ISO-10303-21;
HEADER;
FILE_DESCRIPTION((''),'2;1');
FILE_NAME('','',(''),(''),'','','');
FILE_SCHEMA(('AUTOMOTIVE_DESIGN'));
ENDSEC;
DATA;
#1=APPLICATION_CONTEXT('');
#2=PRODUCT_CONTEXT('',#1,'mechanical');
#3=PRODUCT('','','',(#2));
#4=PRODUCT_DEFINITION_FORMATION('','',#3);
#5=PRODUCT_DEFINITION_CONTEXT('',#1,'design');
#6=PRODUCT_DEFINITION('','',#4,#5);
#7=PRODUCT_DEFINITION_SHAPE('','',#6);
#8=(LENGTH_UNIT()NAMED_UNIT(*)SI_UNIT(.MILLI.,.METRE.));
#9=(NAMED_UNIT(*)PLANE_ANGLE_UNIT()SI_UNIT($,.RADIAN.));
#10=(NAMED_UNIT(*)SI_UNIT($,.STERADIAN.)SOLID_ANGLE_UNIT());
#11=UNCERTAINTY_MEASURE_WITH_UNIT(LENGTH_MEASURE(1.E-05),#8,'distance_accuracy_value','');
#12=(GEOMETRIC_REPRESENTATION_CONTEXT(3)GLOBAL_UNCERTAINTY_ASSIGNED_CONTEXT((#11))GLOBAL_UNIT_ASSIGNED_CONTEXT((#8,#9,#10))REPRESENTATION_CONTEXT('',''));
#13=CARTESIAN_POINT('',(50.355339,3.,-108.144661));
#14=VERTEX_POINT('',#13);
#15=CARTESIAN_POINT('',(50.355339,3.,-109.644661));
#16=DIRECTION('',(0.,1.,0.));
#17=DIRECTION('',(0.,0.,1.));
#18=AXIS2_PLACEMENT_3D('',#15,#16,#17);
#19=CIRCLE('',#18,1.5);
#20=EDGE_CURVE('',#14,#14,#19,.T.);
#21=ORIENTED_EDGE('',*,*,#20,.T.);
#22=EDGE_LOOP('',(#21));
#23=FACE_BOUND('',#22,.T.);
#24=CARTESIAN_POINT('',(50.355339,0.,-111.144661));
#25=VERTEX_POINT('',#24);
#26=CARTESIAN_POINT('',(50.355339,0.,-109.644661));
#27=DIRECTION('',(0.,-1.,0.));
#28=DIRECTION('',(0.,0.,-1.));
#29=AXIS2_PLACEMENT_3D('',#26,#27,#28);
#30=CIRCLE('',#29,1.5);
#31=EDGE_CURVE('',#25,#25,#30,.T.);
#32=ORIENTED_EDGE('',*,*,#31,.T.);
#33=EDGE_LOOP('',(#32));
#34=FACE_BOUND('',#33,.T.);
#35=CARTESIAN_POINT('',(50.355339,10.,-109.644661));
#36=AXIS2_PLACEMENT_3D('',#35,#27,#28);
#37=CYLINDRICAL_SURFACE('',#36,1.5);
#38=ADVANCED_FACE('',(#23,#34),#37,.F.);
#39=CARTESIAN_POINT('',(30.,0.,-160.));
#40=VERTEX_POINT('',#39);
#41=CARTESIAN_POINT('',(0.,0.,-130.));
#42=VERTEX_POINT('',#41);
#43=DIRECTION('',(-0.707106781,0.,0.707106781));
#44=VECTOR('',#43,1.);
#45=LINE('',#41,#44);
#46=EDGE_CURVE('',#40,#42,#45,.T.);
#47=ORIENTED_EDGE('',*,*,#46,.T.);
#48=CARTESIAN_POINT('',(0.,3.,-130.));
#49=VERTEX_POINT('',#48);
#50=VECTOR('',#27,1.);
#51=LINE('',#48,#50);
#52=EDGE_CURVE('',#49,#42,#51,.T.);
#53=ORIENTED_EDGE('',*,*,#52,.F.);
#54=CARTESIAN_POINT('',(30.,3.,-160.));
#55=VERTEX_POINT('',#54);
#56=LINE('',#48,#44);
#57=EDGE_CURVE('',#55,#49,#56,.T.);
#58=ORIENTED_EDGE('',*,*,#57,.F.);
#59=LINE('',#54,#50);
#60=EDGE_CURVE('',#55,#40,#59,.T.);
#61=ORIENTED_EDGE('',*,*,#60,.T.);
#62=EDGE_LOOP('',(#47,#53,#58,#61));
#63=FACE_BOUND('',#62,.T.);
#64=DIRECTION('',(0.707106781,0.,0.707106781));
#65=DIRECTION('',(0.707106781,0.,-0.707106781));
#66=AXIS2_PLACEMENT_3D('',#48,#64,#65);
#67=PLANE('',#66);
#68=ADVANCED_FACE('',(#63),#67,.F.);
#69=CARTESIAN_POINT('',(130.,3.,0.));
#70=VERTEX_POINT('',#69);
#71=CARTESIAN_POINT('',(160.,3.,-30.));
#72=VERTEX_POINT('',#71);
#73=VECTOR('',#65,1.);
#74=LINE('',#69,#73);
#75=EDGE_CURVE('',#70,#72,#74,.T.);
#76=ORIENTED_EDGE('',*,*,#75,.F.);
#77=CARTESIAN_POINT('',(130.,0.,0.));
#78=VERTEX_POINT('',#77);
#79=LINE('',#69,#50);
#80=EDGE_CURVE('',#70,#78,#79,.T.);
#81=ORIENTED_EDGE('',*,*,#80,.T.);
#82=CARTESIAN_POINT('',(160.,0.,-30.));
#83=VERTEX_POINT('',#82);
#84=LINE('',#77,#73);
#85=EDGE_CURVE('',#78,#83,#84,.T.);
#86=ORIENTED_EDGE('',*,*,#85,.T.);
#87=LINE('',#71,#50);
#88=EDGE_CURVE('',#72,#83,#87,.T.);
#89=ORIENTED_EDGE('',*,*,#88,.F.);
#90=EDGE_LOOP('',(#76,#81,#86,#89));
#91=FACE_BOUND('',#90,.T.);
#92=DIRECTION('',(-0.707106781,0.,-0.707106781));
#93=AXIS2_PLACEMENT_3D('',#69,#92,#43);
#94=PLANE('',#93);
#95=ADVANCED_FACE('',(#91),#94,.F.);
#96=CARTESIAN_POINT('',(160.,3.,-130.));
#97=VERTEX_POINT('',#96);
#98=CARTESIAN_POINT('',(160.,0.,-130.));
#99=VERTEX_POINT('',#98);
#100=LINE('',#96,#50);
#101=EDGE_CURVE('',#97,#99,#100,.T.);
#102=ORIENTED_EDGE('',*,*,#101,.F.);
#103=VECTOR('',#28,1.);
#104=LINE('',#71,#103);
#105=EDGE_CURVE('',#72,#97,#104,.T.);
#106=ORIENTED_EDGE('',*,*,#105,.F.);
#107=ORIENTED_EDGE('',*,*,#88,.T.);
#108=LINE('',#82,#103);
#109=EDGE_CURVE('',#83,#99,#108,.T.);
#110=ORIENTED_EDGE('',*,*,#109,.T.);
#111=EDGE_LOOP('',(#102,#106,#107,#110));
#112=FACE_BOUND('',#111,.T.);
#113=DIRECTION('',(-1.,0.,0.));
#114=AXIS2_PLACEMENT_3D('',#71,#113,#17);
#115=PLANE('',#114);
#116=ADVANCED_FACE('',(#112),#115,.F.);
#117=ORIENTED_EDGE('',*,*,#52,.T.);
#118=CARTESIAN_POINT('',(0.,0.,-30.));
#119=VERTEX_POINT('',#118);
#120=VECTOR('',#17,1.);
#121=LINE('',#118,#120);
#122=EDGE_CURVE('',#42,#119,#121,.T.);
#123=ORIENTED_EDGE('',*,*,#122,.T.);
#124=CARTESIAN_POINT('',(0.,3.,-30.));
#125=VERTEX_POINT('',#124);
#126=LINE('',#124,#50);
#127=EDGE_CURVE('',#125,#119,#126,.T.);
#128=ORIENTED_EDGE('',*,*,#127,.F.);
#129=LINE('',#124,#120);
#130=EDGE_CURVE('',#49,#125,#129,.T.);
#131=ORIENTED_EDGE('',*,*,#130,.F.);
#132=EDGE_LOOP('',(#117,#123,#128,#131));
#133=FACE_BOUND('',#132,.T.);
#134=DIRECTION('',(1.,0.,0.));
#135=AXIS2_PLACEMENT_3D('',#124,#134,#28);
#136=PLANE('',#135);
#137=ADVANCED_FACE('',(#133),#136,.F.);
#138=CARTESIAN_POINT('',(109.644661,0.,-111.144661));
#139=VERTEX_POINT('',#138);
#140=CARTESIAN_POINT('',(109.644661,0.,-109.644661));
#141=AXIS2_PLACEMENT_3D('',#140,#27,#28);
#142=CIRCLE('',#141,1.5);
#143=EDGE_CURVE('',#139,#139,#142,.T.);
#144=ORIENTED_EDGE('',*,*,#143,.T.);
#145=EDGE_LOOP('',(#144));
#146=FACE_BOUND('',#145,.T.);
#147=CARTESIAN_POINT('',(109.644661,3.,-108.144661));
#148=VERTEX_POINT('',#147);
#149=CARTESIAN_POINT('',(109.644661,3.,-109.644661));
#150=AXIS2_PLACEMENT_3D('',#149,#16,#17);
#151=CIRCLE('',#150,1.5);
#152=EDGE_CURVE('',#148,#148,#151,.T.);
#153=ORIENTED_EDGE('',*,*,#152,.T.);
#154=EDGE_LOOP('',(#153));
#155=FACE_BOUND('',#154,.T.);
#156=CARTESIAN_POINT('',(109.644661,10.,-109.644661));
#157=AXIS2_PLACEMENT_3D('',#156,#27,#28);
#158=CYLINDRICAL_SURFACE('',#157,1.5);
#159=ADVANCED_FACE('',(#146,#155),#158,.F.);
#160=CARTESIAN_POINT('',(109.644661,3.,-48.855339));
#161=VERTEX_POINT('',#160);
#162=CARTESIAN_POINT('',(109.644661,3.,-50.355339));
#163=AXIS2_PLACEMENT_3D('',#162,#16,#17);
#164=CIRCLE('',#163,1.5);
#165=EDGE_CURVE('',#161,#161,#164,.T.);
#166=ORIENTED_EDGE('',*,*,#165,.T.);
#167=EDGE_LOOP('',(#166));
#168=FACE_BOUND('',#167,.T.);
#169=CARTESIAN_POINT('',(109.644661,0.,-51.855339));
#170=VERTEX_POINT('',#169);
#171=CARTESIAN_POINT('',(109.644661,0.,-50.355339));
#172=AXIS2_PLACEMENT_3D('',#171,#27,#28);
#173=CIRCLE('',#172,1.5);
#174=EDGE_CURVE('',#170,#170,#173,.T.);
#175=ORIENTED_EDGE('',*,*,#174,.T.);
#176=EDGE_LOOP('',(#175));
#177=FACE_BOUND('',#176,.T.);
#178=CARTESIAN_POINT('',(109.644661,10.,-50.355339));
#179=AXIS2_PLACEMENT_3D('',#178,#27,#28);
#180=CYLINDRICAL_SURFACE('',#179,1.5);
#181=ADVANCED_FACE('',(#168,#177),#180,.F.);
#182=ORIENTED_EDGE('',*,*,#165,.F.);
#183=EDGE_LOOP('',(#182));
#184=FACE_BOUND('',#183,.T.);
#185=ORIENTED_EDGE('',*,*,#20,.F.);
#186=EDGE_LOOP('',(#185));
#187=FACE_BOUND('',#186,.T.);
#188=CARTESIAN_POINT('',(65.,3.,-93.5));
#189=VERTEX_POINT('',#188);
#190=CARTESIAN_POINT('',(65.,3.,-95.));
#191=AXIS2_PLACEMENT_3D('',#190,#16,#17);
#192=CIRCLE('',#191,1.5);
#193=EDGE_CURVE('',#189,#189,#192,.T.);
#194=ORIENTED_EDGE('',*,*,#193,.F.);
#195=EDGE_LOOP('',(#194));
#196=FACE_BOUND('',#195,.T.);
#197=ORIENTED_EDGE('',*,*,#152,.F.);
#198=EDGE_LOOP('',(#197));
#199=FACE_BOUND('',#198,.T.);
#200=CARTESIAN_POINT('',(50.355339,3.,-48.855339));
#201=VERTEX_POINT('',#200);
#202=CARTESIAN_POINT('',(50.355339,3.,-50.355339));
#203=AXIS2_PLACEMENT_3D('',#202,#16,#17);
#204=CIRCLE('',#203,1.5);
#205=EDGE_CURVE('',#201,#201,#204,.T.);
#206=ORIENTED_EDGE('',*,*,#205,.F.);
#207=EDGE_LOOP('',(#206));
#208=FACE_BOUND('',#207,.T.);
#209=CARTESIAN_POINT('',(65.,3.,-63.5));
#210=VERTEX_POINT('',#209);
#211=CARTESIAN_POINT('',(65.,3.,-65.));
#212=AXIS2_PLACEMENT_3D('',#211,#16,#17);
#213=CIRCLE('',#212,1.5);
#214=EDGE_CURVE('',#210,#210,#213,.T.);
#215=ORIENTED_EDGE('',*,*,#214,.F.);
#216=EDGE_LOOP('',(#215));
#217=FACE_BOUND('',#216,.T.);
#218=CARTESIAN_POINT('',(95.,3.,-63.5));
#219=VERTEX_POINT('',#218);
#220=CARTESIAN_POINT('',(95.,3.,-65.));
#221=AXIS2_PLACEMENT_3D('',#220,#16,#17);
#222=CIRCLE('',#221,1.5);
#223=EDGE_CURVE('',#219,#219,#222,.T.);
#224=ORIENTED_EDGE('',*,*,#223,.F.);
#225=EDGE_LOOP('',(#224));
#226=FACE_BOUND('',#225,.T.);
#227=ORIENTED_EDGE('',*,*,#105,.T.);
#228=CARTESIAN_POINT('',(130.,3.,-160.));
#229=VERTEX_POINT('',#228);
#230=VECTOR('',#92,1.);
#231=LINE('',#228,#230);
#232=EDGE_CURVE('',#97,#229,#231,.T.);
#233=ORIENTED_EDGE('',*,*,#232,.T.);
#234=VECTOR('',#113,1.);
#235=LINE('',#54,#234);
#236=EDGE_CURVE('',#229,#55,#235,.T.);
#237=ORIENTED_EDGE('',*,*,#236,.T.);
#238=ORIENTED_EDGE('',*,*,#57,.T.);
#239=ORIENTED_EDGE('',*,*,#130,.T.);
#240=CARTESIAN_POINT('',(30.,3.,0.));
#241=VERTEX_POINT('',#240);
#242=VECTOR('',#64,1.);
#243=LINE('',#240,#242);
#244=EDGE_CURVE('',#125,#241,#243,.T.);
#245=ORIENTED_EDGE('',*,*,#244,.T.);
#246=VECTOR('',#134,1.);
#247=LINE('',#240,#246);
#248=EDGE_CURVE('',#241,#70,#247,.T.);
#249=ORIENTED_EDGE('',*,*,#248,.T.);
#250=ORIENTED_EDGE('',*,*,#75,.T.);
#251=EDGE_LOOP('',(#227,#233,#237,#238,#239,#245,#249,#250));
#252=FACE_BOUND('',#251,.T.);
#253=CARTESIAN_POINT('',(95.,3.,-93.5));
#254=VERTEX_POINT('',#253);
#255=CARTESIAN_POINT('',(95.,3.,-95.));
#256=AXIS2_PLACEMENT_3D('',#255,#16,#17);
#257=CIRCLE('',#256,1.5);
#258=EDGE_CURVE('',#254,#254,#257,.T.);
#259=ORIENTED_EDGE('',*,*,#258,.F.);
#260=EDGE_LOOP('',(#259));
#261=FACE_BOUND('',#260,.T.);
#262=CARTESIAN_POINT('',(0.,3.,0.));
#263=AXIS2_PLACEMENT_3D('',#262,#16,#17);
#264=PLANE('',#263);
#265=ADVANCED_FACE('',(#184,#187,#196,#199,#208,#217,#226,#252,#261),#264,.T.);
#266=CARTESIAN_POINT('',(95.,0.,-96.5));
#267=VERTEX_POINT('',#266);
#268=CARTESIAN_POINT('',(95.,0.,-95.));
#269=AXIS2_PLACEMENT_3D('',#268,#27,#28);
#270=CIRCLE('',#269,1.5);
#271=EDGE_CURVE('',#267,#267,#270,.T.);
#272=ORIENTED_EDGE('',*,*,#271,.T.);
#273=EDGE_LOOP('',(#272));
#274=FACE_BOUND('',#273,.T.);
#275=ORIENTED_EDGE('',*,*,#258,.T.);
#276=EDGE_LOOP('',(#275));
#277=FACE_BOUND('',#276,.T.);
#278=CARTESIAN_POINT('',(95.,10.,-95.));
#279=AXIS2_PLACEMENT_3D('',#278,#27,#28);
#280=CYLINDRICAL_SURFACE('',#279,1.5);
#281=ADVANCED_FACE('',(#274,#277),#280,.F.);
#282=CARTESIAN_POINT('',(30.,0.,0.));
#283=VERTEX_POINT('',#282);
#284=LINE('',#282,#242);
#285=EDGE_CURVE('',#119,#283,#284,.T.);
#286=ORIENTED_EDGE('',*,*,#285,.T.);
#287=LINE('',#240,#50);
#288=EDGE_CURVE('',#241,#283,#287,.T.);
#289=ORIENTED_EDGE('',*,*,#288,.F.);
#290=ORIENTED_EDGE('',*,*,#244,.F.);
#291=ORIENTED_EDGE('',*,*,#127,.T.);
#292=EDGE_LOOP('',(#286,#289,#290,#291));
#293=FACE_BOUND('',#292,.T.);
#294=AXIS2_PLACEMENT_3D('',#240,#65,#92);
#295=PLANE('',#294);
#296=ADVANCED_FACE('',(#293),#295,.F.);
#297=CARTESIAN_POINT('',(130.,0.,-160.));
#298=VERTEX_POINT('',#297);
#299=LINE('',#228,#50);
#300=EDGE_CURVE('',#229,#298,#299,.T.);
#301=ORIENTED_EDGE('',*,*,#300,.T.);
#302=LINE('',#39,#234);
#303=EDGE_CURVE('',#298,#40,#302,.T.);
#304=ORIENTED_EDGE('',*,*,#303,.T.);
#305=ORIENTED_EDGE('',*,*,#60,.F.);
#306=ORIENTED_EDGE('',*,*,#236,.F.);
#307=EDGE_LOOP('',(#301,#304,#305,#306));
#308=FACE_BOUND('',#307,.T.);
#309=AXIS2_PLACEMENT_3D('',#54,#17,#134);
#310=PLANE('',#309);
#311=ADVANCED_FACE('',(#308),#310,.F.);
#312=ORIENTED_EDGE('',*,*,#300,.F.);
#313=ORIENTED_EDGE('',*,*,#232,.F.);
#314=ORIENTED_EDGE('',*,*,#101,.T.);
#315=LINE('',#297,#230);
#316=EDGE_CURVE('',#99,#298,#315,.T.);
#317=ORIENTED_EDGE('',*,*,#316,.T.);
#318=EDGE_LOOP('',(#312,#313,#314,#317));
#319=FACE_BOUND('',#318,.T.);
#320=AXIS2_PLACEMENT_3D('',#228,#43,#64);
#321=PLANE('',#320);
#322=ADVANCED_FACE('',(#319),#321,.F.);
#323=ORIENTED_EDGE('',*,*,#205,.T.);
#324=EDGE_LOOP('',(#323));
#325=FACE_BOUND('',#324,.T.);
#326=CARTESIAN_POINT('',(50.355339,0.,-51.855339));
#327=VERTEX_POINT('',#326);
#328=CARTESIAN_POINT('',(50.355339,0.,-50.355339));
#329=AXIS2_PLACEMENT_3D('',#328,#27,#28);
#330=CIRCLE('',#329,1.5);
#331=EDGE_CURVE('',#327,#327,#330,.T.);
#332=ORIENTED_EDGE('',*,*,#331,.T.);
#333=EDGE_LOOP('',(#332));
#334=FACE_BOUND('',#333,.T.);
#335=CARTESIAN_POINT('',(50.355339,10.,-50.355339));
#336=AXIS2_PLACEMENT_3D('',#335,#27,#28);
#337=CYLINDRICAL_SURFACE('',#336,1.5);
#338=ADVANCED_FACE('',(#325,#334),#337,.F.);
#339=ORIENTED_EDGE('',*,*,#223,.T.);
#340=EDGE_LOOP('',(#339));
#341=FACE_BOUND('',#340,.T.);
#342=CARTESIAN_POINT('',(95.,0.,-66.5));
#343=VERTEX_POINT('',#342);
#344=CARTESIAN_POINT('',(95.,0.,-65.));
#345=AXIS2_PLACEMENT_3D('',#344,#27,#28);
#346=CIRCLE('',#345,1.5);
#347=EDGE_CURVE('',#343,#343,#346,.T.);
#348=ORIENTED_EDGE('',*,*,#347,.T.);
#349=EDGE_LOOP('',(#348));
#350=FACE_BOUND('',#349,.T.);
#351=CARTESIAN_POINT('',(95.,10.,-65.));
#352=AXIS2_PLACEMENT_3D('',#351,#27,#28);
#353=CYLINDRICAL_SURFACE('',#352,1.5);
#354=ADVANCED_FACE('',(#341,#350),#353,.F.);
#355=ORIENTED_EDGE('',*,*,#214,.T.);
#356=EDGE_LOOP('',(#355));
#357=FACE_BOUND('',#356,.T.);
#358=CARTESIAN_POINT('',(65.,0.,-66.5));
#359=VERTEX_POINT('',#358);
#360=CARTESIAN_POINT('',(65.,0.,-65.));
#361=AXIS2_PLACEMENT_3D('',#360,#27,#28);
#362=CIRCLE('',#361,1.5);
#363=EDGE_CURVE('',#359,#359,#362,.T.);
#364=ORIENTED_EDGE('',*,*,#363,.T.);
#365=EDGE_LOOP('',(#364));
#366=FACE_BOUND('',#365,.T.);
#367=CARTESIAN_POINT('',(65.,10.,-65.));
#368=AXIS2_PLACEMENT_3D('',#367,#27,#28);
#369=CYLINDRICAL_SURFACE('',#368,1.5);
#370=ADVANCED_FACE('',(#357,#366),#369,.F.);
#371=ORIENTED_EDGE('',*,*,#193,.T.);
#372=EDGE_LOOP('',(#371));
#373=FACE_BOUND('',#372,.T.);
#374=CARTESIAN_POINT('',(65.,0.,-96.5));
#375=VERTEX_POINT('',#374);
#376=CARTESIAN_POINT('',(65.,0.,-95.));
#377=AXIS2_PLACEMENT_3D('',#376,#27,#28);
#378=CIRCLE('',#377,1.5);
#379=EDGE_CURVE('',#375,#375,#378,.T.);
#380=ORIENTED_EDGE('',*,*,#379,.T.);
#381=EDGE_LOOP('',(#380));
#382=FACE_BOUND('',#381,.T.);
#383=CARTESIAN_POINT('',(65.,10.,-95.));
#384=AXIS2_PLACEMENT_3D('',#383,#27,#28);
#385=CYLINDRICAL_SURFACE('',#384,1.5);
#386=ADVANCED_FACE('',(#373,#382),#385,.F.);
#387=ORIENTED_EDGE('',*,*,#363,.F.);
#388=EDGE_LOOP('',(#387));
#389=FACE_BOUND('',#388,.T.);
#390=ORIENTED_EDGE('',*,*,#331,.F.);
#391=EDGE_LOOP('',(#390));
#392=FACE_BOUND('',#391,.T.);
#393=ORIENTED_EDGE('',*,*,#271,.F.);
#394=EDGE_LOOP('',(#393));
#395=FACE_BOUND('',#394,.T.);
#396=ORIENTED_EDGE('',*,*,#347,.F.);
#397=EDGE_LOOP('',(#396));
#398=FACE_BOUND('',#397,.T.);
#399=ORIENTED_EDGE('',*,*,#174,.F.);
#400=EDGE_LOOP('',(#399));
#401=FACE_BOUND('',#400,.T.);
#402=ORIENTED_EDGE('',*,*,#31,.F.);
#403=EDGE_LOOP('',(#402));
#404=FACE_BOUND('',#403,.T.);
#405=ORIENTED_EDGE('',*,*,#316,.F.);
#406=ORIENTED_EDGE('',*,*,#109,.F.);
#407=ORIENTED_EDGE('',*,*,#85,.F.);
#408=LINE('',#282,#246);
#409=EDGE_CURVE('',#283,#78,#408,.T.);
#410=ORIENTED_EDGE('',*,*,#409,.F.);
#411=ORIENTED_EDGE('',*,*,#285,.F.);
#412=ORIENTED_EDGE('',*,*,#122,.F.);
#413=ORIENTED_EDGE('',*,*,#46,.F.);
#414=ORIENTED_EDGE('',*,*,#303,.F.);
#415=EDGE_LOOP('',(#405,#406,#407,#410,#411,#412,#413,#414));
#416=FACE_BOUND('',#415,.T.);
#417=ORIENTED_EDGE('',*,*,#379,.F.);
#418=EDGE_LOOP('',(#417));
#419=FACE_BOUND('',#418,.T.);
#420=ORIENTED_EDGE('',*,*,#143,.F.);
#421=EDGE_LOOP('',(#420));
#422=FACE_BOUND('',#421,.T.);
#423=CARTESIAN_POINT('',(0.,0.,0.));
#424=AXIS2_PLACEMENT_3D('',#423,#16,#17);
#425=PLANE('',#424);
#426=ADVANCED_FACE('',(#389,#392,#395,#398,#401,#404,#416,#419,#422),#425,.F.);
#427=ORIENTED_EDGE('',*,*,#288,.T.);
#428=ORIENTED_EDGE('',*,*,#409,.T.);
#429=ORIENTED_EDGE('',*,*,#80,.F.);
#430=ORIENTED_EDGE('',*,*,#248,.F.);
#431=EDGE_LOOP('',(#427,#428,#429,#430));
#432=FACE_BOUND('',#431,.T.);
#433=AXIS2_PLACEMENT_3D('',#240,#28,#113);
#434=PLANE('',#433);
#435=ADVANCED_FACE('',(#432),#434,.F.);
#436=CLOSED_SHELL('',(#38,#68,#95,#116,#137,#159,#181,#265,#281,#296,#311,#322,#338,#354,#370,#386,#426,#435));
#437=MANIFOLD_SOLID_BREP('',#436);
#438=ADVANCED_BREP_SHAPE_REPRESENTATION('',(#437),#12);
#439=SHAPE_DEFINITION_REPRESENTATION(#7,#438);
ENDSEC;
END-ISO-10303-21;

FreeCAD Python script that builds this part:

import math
import FreeCAD as App
import Part
import Sketcher

V = App.Vector


def add_polygon(sketch, points):
    """Adds a closed chain of lines whose ends are joined by coincident constraints."""
    first, n = sketch.GeometryCount, len(points)
    for a, b in zip(points, points[1:] + points[:1]):
        sketch.addGeometry(Part.LineSegment(App.Vector(*a, 0), App.Vector(*b, 0)), False)
    for i in range(n):
        sketch.addConstraint(Sketcher.Constraint("Coincident", first + i, 2, first + (i + 1) % n, 1))

doc = App.newDocument("Part")
body = doc.addObject("PartDesign::Body", "Body")

# Sketch on XZ plane
sketch1 = body.newObject("Sketcher::SketchObject", "Sketch")
sketch1.AttachmentSupport = (doc.getObject("XZ_Plane"), [""])
sketch1.MapMode = "FlatFace"
add_polygon(sketch1, [(30, -160), (0, -130), (0, -30), (30, 0), (130, 0), (160, -30), (160, -130), (130, -160)])  # lines 0-7
sketch1.addConstraint([
    Sketcher.Constraint("Vertical", 1),
    Sketcher.Constraint("Horizontal", 3),
    Sketcher.Constraint("Vertical", 5),
    Sketcher.Constraint("Horizontal", 7),
    Sketcher.Constraint("PointOnObject", 0, 2, -2),
    Sketcher.Constraint("PointOnObject", 2, 2, -1),
    Sketcher.Constraint("Perpendicular", 0, 2),
    Sketcher.Constraint("Perpendicular", 2, 4),
    Sketcher.Constraint("Perpendicular", 4, 6),
    Sketcher.Constraint("Horizontal", 1, 2, 4, 2),
    Sketcher.Constraint("Horizontal", 0, 2, 5, 2),
    Sketcher.Constraint("Vertical", 3, 2, 6, 2),
    Sketcher.Constraint("Vertical", 2, 2, 7, 2),
    Sketcher.Constraint("Equal", 7, 1),
    Sketcher.Constraint("DistanceX", 3, 1, 3, 2, 100.0),
    Sketcher.Constraint("DistanceY", 0, 2, -1, 1, 130.0),
])
pad1 = body.newObject("PartDesign::Pad", "Pad")
pad1.Profile = sketch1
pad1.Length = 3
pad1.Reversed = True

# Sketch on XZ plane
sketch2 = body.newObject("Sketcher::SketchObject", "Sketch001")
sketch2.AttachmentSupport = (doc.getObject("XZ_Plane"), [""])
sketch2.MapMode = "FlatFace"
sketch2.addGeometry([
    Part.ArcOfCircle(Part.Circle(V(50.4, -50.4, 0), V(0, 0, 1), 1.5), math.radians(135), math.radians(315)),  # 0
    Part.ArcOfCircle(Part.Circle(V(50.4, -50.4, 0), V(0, 0, 1), 1.5), math.radians(-45), math.radians(0)),  # 1
    Part.ArcOfCircle(Part.Circle(V(50.4, -50.4, 0), V(0, 0, 1), 1.5), math.radians(0), math.radians(135)),  # 2
    Part.ArcOfCircle(Part.Circle(V(109.6, -50.4, 0), V(0, 0, 1), 1.5), math.radians(45), math.radians(225)),  # 3
    Part.ArcOfCircle(Part.Circle(V(109.6, -50.4, 0), V(0, 0, 1), 1.5), math.radians(-135), math.radians(0)),  # 4
    Part.ArcOfCircle(Part.Circle(V(109.6, -50.4, 0), V(0, 0, 1), 1.5), math.radians(0), math.radians(45)),  # 5
    Part.ArcOfCircle(Part.Circle(V(109.6, -109.6, 0), V(0, 0, 1), 1.5), math.radians(0), math.radians(135)),  # 6
    Part.ArcOfCircle(Part.Circle(V(109.6, -109.6, 0), V(0, 0, 1), 1.5), math.radians(135), math.radians(315)),  # 7
    Part.ArcOfCircle(Part.Circle(V(109.6, -109.6, 0), V(0, 0, 1), 1.5), math.radians(-45), math.radians(0)),  # 8
    Part.ArcOfCircle(Part.Circle(V(50.4, -109.6, 0), V(0, 0, 1), 1.5), math.radians(45), math.radians(225)),  # 9
    Part.ArcOfCircle(Part.Circle(V(50.4, -109.6, 0), V(0, 0, 1), 1.5), math.radians(-135), math.radians(0)),  # 10
    Part.ArcOfCircle(Part.Circle(V(50.4, -109.6, 0), V(0, 0, 1), 1.5), math.radians(0), math.radians(45)),  # 11
    Part.Circle(V(65, -95, 0), V(0, 0, 1), 1.5),  # 12
    Part.Circle(V(95, -95, 0), V(0, 0, 1), 1.5),  # 13
    Part.Circle(V(65, -65, 0), V(0, 0, 1), 1.5),  # 14
    Part.Circle(V(95, -65, 0), V(0, 0, 1), 1.5),  # 15
], False)
sketch2.addConstraint([
    Sketcher.Constraint("Tangent", 0, 2, 1, 1),
    Sketcher.Constraint("Tangent", 1, 2, 2, 1),
    Sketcher.Constraint("Tangent", 2, 2, 0, 1),
    Sketcher.Constraint("Tangent", 3, 2, 4, 1),
    Sketcher.Constraint("Tangent", 4, 2, 5, 1),
    Sketcher.Constraint("Tangent", 5, 2, 3, 1),
    Sketcher.Constraint("Tangent", 6, 2, 7, 1),
    Sketcher.Constraint("Tangent", 7, 2, 8, 1),
    Sketcher.Constraint("Tangent", 8, 2, 6, 1),
    Sketcher.Constraint("Tangent", 9, 2, 10, 1),
    Sketcher.Constraint("Tangent", 10, 2, 11, 1),
    Sketcher.Constraint("Tangent", 11, 2, 9, 1),
    Sketcher.Constraint("Equal", 2, 3),
    Sketcher.Constraint("Equal", 5, 6),
    Sketcher.Constraint("Equal", 8, 9),
    Sketcher.Constraint("Equal", 11, 12),
    Sketcher.Constraint("Equal", 12, 13),
    Sketcher.Constraint("Equal", 13, 14),
    Sketcher.Constraint("Equal", 14, 15),
    Sketcher.Constraint("Horizontal", 2, 3, 3, 3),
    Sketcher.Constraint("Horizontal", 8, 3, 9, 3),
    Sketcher.Constraint("Horizontal", 12, 3, 13, 3),
    Sketcher.Constraint("Horizontal", 14, 3, 15, 3),
    Sketcher.Constraint("Horizontal", 5, 3, 1, 2),
    Sketcher.Constraint("Horizontal", 0, 2, 3, 2),
    Sketcher.Constraint("Horizontal", 1, 2, 4, 2),
    Sketcher.Constraint("Horizontal", 2, 2, 5, 2),
    Sketcher.Constraint("Horizontal", 11, 3, 8, 2),
    Sketcher.Constraint("Horizontal", 7, 2, 9, 2),
    Sketcher.Constraint("Horizontal", 8, 2, 10, 2),
    Sketcher.Constraint("Horizontal", 6, 2, 11, 2),
    Sketcher.Constraint("Vertical", 5, 3, 6, 3),
    Sketcher.Constraint("Vertical", 2, 3, 9, 3),
    Sketcher.Constraint("Vertical", 12, 3, 14, 3),
    Sketcher.Constraint("Vertical", 13, 3, 15, 3),
    Sketcher.Constraint("Vertical", 3, 2, 6, 2),
    Sketcher.Constraint("Vertical", 5, 2, 7, 2),
    Sketcher.Constraint("Diameter", 12, 3.0),
    Sketcher.Constraint("DistanceX", -1, 1, 12, 3, 65.0),
    Sketcher.Constraint("DistanceY", 12, 3, -1, 1, 95.0),
    Sketcher.Constraint("DistanceX", -1, 1, 13, 3, 95.0),
    Sketcher.Constraint("DistanceY", 14, 3, -1, 1, 65.0),
    Sketcher.Constraint("DistanceX", -1, 1, 0, 2, 51.415999),
    Sketcher.Constraint("DistanceY", 0, 2, -1, 1, 51.415999),
    Sketcher.Constraint("DistanceX", -1, 1, 3, 2, 108.584001),
    Sketcher.Constraint("DistanceY", 6, 2, -1, 1, 108.584001),
    Sketcher.Constraint("DistanceX", -1, 1, 0, 3, 50.355339),
    Sketcher.Constraint("DistanceX", -1, 1, 2, 2, 49.294679),
])
pocket1 = body.newObject("PartDesign::Pocket", "Pocket")
pocket1.Profile = sketch2
pocket1.Length = 10

doc.recompute()
